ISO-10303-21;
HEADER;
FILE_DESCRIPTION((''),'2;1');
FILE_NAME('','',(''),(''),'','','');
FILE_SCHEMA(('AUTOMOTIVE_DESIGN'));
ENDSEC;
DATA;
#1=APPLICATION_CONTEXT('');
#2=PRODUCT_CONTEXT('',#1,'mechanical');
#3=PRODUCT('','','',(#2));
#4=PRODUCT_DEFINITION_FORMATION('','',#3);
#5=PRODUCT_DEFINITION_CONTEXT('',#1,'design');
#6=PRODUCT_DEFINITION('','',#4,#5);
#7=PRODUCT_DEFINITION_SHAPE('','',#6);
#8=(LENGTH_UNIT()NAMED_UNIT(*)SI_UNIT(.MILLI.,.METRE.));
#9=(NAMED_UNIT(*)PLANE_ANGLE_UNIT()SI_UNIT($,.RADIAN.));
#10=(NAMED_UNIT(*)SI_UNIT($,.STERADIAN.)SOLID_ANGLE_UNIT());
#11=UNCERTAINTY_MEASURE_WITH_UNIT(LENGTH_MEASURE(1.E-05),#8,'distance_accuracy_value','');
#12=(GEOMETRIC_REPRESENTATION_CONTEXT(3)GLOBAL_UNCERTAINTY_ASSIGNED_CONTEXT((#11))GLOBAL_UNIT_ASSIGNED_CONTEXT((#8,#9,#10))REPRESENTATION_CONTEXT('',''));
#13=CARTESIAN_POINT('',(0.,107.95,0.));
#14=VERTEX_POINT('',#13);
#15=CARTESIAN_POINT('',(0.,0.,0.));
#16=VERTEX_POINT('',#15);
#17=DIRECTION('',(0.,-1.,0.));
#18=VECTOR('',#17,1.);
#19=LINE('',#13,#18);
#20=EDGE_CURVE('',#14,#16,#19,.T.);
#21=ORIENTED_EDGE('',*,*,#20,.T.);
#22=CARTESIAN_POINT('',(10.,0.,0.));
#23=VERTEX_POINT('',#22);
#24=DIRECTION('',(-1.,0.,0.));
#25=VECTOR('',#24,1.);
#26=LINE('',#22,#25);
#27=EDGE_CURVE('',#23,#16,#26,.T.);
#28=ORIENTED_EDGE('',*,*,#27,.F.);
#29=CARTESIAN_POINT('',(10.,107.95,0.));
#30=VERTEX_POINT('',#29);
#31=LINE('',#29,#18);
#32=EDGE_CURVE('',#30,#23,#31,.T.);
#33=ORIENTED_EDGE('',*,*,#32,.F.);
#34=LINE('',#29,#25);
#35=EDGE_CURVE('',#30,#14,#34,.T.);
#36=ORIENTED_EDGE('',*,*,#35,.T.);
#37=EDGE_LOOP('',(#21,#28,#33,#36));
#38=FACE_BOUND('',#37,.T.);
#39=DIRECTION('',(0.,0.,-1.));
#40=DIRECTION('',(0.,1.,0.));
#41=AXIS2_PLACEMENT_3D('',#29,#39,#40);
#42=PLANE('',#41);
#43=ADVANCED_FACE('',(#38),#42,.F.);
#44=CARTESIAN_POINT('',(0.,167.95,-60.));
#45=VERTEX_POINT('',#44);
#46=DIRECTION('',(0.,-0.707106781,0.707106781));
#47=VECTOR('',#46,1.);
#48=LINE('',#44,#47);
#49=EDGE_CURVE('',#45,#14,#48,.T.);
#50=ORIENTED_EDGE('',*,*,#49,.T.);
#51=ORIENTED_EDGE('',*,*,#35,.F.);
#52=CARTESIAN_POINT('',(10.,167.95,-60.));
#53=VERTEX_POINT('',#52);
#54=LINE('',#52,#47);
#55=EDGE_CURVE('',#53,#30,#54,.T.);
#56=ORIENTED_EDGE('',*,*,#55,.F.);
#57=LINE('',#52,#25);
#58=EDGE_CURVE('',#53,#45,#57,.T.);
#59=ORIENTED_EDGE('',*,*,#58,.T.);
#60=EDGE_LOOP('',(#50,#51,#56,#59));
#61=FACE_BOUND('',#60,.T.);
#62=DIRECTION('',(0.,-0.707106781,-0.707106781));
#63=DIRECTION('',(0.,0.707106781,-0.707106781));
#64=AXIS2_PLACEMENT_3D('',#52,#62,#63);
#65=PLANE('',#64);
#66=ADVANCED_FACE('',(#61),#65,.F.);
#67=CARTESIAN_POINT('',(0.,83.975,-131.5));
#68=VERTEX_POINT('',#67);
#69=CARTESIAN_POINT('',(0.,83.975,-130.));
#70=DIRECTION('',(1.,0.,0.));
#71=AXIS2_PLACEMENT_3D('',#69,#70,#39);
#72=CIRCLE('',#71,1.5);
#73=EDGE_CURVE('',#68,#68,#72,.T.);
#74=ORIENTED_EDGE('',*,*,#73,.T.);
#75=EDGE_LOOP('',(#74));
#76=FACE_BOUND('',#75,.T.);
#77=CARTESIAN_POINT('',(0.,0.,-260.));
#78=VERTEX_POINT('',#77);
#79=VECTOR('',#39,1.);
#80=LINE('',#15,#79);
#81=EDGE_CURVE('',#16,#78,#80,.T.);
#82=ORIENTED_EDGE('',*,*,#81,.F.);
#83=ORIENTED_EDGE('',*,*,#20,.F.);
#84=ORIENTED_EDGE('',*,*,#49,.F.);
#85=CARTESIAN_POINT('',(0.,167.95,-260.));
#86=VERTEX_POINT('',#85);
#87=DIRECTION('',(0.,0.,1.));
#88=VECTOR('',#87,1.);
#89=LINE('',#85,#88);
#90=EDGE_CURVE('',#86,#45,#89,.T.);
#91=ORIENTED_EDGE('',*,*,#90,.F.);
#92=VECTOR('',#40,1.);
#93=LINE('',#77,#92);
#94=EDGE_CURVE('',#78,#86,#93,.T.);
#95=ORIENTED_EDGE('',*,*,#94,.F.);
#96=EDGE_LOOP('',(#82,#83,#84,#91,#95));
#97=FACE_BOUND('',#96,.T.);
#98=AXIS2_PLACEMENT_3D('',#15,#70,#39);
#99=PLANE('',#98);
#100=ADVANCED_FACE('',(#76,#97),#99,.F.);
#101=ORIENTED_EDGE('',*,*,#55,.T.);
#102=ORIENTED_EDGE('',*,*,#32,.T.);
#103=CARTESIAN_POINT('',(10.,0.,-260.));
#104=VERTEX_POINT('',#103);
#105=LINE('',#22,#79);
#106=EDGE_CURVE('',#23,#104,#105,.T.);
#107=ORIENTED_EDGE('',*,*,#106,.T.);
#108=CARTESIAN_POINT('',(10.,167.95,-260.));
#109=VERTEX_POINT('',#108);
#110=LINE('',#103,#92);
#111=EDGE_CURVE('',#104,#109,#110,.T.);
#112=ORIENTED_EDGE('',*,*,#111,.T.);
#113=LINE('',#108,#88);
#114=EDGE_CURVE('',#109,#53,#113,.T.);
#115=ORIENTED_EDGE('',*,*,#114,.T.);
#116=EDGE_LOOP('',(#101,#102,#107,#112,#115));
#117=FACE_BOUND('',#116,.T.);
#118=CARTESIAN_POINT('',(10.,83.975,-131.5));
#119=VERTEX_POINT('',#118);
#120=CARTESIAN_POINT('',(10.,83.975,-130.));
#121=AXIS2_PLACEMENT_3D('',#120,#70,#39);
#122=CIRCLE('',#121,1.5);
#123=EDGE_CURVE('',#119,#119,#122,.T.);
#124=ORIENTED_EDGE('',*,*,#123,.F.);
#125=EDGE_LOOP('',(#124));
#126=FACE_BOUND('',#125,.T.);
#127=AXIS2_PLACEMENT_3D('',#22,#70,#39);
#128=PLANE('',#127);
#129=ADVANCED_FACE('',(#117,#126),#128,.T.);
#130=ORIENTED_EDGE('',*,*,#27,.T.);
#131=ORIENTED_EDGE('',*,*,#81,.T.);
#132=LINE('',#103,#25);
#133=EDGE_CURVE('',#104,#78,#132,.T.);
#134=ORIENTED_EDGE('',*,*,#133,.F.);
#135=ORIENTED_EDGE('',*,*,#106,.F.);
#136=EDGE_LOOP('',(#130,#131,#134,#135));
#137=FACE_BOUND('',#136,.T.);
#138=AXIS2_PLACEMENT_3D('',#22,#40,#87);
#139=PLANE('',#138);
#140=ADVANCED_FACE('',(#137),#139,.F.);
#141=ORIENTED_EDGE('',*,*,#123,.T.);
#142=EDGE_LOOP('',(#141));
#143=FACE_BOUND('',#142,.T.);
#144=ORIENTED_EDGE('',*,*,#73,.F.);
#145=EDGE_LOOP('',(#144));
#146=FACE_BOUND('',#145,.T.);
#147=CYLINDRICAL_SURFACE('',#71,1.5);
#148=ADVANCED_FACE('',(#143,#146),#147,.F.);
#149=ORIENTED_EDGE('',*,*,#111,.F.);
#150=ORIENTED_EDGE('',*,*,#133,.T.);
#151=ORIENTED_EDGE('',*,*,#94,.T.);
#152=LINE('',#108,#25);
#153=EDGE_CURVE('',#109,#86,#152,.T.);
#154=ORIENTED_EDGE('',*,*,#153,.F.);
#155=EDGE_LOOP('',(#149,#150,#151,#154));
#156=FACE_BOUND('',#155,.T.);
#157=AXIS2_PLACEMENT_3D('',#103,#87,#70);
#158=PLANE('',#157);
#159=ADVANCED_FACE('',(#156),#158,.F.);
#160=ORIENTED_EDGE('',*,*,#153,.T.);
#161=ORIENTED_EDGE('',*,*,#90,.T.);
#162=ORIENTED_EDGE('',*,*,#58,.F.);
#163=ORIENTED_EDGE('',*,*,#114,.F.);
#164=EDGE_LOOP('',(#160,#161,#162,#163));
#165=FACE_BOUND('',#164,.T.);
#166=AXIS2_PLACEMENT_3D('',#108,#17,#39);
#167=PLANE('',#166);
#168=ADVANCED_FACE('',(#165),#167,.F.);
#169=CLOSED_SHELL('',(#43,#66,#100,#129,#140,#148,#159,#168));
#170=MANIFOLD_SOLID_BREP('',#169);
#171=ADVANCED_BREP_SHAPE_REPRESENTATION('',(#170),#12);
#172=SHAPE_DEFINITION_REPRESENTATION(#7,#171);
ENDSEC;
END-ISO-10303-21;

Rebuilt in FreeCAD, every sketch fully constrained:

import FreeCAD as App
import Part
import Sketcher

V = App.Vector
Q = App.Units.Quantity

doc = App.newDocument("Part")
params = doc.addObject("Spreadsheet::Sheet", "Params")
for row, (alias, value) in enumerate([
    ("sketch1_height", "260 mm"),
    ("sketch1_height2", "200 mm"),
    ("sketch1_width", "167.95 mm"),
    ("pad1_length", "10 mm"),
    ("sketch2_diameter", "3 mm"),
    ("pocket1_length", "10 mm"),
], start=1):
    params.set(f"A{row}", alias)
    params.set(f"B{row}", "=" + value)
    params.setAlias(f"B{row}", alias)

body = doc.addObject("PartDesign::Body", "Body")

sketch1 = body.newObject("Sketcher::SketchObject", "Sketch")
sketch1.AttachmentSupport = (doc.getObject("YZ_Plane"), [""])
sketch1.MapMode = "FlatFace"
sketch1.addGeometry(Part.LineSegment(V(0, 0, 0), V(0, -260, 0)), False)
sketch1.addGeometry(Part.LineSegment(V(0, -260, 0), V(168, -260, 0)), False)
sketch1.addGeometry(Part.LineSegment(V(168, -260, 0), V(168, -60, 0)), False)
sketch1.addGeometry(Part.LineSegment(V(168, -60, 0), V(108, 0, 0)), False)
sketch1.addGeometry(Part.LineSegment(V(108, 0, 0), V(0, 0, 0)), False)
sketch1.addConstraint(Sketcher.Constraint("Coincident", 0, 2, 1, 1))
sketch1.addConstraint(Sketcher.Constraint("Coincident", 1, 2, 2, 1))
sketch1.addConstraint(Sketcher.Constraint("Coincident", 2, 2, 3, 1))
sketch1.addConstraint(Sketcher.Constraint("Coincident", 3, 2, 4, 1))
sketch1.addConstraint(Sketcher.Constraint("Coincident", 4, 2, 0, 1))
sketch1.addConstraint(Sketcher.Constraint("Vertical", 0))
sketch1.addConstraint(Sketcher.Constraint("Horizontal", 1))
sketch1.addConstraint(Sketcher.Constraint("Vertical", 2))
sketch1.addConstraint(Sketcher.Constraint("Horizontal", 4))
sketch1.addConstraint(Sketcher.Constraint("Coincident", 4, 2, -1, 1))
sketch1.addConstraint(Sketcher.Constraint("DistanceY", 0, 2, 0, 1, 260.0))
sketch1.addConstraint(Sketcher.Constraint("DistanceY", 2, 1, 2, 2, 200.0))
sketch1.addConstraint(Sketcher.Constraint("Angle", 3, Q("135 deg")))
sketch1.addConstraint(Sketcher.Constraint("DistanceX", 1, 1, 1, 2, 167.95))
sketch1.setExpression("Constraints[10]", "Params.sketch1_height")
sketch1.setExpression("Constraints[11]", "Params.sketch1_height2")
sketch1.setExpression("Constraints[13]", "Params.sketch1_width")
pad1 = body.newObject("PartDesign::Pad", "Pad")
pad1.Profile = sketch1
pad1.setExpression("Length", "Params.pad1_length")

sketch2 = body.newObject("Sketcher::SketchObject", "Sketch001")
sketch2.AttachmentSupport = (doc.getObject("YZ_Plane"), [""])
sketch2.MapMode = "FlatFace"
sketch2.AttachmentOffset = App.Placement(V(0, 0, 10), App.Rotation())
sketch2.addGeometry(Part.Circle(V(84, -130, 0), V(0, 0, 1), 1.5), False)
sketch2.addConstraint(Sketcher.Constraint("Diameter", 0, 3.0))
sketch2.addConstraint(Sketcher.Constraint("DistanceY", 0, 3, -1, 1, 130.0))
sketch2.addConstraint(Sketcher.Constraint("DistanceX", -1, 1, 0, 3, 83.975))
sketch2.setExpression("Constraints[0]", "Params.sketch2_diameter")
pocket1 = body.newObject("PartDesign::Pocket", "Pocket")
pocket1.Profile = sketch2
pocket1.setExpression("Length", "Params.pocket1_length")

doc.recompute()
